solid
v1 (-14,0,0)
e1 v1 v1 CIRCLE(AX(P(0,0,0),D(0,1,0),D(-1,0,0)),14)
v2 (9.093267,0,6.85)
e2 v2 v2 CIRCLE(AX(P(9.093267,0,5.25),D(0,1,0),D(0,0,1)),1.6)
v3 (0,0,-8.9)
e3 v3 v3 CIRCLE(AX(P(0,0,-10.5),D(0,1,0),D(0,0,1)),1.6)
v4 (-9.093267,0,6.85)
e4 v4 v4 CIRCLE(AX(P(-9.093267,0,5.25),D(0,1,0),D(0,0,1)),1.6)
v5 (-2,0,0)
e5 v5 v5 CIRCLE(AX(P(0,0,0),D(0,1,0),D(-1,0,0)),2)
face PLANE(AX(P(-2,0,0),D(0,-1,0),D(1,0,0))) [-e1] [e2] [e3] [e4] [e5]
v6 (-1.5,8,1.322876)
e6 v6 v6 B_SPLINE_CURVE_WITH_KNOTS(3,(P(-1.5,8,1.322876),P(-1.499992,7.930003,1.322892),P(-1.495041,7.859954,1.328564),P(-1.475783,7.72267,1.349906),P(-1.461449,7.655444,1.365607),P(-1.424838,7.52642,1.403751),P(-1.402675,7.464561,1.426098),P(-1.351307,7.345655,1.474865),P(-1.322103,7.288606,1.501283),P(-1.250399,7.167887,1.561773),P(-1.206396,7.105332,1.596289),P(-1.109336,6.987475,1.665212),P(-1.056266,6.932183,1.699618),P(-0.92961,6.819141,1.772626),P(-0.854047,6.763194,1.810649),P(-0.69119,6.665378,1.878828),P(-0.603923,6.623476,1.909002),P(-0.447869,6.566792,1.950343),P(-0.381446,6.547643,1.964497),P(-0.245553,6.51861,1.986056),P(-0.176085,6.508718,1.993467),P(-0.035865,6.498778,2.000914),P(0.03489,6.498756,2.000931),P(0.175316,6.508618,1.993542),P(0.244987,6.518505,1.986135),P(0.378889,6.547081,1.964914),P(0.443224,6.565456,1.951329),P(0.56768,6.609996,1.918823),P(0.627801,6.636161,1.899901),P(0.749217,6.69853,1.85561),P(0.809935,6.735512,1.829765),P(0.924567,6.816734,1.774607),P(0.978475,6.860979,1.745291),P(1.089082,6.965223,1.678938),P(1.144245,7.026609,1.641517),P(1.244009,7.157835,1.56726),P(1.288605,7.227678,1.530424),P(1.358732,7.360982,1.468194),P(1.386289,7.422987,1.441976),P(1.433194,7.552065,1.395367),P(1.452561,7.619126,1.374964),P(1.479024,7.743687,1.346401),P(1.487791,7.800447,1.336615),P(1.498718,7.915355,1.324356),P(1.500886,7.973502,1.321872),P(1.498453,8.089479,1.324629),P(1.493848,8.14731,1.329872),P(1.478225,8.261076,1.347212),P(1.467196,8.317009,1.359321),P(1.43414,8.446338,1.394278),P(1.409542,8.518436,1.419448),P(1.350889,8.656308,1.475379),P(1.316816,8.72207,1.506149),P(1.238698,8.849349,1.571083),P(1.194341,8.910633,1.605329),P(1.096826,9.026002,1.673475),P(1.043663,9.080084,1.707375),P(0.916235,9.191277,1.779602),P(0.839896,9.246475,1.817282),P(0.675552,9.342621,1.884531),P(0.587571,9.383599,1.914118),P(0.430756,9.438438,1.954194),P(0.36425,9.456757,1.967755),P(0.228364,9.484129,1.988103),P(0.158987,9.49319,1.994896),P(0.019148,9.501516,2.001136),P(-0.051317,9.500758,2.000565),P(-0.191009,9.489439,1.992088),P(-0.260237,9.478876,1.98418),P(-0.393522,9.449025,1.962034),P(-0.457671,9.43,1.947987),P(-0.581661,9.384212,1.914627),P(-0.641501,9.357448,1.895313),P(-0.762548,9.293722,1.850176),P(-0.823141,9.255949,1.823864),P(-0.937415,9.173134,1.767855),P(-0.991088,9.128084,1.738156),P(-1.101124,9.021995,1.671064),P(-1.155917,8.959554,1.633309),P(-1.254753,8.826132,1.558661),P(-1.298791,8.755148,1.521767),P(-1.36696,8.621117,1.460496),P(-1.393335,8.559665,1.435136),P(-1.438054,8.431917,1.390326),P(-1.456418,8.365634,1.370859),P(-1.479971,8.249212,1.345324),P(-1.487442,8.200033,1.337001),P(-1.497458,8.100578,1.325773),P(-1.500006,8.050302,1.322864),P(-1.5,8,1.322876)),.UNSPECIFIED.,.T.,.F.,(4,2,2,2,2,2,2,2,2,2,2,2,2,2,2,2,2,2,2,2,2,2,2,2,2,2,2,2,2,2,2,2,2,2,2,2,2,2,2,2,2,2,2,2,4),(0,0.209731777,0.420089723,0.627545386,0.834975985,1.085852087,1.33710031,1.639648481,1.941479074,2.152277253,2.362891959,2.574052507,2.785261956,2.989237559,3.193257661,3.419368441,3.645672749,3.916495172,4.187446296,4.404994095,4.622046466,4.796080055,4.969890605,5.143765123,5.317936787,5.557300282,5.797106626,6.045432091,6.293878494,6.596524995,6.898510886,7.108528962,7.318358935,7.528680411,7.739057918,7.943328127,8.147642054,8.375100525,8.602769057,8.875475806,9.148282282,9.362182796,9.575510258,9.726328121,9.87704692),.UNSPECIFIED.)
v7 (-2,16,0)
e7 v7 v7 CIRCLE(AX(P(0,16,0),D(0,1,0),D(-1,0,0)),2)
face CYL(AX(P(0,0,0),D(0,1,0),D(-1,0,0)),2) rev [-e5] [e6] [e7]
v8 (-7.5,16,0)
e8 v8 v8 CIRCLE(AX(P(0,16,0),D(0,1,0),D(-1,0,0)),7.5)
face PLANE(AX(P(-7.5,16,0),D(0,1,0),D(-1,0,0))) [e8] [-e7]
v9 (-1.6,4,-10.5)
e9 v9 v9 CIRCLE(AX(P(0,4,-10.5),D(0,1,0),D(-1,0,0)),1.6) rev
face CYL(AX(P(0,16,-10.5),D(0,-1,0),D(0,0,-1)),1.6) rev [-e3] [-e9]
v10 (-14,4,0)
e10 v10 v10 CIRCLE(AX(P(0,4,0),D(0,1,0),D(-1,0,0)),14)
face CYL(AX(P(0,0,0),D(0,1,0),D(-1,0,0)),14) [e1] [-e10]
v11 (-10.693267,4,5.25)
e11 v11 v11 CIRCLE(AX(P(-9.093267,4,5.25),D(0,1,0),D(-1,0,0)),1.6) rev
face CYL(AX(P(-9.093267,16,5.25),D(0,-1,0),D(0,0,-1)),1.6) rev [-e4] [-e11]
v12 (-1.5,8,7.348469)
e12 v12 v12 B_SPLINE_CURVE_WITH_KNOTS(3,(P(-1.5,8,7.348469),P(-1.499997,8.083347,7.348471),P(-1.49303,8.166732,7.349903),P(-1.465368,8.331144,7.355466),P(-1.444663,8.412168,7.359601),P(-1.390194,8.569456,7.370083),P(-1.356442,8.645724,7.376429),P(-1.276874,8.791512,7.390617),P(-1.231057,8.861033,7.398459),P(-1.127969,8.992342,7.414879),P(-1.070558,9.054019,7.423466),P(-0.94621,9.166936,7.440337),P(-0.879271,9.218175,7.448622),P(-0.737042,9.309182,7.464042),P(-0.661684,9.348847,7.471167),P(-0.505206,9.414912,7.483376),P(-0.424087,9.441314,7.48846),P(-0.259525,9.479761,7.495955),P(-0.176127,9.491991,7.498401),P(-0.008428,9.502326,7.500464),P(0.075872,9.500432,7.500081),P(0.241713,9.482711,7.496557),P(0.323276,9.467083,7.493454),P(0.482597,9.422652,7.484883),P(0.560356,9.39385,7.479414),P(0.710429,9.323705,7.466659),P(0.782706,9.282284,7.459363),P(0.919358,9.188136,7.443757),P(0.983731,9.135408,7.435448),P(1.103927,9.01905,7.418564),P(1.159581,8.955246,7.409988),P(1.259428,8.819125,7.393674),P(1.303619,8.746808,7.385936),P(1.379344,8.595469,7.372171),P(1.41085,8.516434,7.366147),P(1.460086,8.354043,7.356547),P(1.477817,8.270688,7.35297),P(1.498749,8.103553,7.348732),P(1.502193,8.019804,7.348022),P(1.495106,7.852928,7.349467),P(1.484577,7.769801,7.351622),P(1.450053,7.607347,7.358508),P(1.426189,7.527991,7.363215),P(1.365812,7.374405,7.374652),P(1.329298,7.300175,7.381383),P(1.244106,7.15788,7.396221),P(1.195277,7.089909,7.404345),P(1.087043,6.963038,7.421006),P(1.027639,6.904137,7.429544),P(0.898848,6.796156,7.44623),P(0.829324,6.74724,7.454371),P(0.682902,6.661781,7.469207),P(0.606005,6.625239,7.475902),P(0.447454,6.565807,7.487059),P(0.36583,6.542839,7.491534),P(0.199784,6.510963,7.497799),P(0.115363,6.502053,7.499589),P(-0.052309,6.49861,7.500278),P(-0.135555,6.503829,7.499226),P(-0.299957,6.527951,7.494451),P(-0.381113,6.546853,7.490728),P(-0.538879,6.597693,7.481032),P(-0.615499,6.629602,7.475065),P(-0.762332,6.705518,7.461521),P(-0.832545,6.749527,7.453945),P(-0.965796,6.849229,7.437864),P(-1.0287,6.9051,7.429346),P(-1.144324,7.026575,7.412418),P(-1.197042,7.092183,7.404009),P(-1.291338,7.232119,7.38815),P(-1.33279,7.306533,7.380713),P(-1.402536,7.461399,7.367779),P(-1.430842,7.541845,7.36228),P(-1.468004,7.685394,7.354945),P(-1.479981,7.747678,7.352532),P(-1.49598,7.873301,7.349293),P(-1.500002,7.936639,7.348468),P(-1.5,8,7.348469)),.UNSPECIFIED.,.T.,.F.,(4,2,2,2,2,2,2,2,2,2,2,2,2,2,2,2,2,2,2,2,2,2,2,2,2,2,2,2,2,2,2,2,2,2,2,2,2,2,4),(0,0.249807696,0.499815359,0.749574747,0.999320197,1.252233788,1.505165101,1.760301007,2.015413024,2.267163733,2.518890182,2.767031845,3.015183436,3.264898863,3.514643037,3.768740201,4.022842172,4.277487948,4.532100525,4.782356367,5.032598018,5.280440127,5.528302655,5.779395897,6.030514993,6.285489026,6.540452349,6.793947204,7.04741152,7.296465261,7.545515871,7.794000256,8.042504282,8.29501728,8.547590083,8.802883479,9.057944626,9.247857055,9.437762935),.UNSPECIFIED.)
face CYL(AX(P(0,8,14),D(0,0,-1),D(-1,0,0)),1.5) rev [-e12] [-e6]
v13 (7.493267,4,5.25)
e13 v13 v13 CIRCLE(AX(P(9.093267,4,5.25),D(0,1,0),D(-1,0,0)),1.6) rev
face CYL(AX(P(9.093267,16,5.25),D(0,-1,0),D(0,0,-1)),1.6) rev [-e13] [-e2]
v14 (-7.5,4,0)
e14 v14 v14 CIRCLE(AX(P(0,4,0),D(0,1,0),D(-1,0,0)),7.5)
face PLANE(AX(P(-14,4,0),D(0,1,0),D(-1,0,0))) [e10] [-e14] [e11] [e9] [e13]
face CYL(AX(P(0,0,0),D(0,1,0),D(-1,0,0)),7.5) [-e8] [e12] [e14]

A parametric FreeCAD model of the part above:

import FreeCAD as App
import Part
import Sketcher
from FreeCAD import Vector

doc = App.newDocument("Part")
body = doc.addObject("PartDesign::Body", "Body")

# Sketch on XY plane
sketch1 = doc.addObject("Sketcher::SketchObject", "Sketch")
body.addObject(sketch1)
sketch1.AttachmentSupport = (doc.XY_Plane, [""])
sketch1.MapMode = "FlatFace"
sketch1.addGeometry(Part.LineSegment(Vector(-14, 4, 0), Vector(-14, 0, 0)), False)
sketch1.addGeometry(Part.LineSegment(Vector(-14, 0, 0), Vector(-2, 0, 0)), False)
sketch1.addGeometry(Part.LineSegment(Vector(-2, 0, 0), Vector(-2, 16, 0)), False)
sketch1.addGeometry(Part.LineSegment(Vector(-2, 16, 0), Vector(-7.5, 16, 0)), False)
sketch1.addGeometry(Part.LineSegment(Vector(-7.5, 16, 0), Vector(-7.5, 4, 0)), False)
sketch1.addGeometry(Part.LineSegment(Vector(-7.5, 4, 0), Vector(-14, 4, 0)), False)
sketch1.addConstraint(Sketcher.Constraint("Coincident", 0, 2, 1, 1))
sketch1.addConstraint(Sketcher.Constraint("Coincident", 1, 2, 2, 1))
sketch1.addConstraint(Sketcher.Constraint("Coincident", 2, 2, 3, 1))
sketch1.addConstraint(Sketcher.Constraint("Coincident", 3, 2, 4, 1))
sketch1.addConstraint(Sketcher.Constraint("Coincident", 4, 2, 5, 1))
sketch1.addConstraint(Sketcher.Constraint("Coincident", 5, 2, 0, 1))
sketch1.addConstraint(Sketcher.Constraint("Vertical", 0))
sketch1.addConstraint(Sketcher.Constraint("Horizontal", 1))
sketch1.addConstraint(Sketcher.Constraint("Vertical", 2))
sketch1.addConstraint(Sketcher.Constraint("Horizontal", 3))
sketch1.addConstraint(Sketcher.Constraint("Vertical", 4))
sketch1.addConstraint(Sketcher.Constraint("Horizontal", 5))
sketch1.addConstraint(Sketcher.Constraint("PointOnObject", 0, 2, -1))
sketch1.addConstraint(Sketcher.Constraint("Equal", 1, 4))
sketch1.addConstraint(Sketcher.Constraint("DistanceX", 1, 1, 1, 2, 12.0))
sketch1.addConstraint(Sketcher.Constraint("DistanceY", 0, 2, 0, 1, 4.0))
sketch1.addConstraint(Sketcher.Constraint("DistanceX", 3, 2, 3, 1, 5.5))
sketch1.addConstraint(Sketcher.Constraint("DistanceX", 0, 2, -1, 1, 14.0))
revolution = doc.addObject("PartDesign::Revolution", "Revolution")
body.addObject(revolution)
revolution.Profile = sketch1
revolution.ReferenceAxis = (sketch1, ["V_Axis"])
revolution.Angle = 360

# Sketch on XZ plane
sketch2 = doc.addObject("Sketcher::SketchObject", "Sketch001")
body.addObject(sketch2)
sketch2.AttachmentSupport = (doc.XZ_Plane, [""])
sketch2.MapMode = "FlatFace"
sketch2.addGeometry(Part.Circle(Vector(0, -10.5, 0), Vector(0, 0, 1), 1.6), False)
sketch2.addGeometry(Part.Circle(Vector(9.1, 5.2, 0), Vector(0, 0, 1), 1.6), False)
sketch2.addGeometry(Part.Circle(Vector(-9.1, 5.2, 0), Vector(0, 0, 1), 1.6), False)
sketch2.addConstraint(Sketcher.Constraint("Equal", 0, 1))
sketch2.addConstraint(Sketcher.Constraint("Equal", 1, 2))
sketch2.addConstraint(Sketcher.Constraint("Symmetric", 1, 3, 2, 3, -2))
sketch2.addConstraint(Sketcher.Constraint("PointOnObject", 0, 3, -2))
sketch2.addConstraint(Sketcher.Constraint("Diameter", 0, 3.2))
sketch2.addConstraint(Sketcher.Constraint("DistanceY", 0, 3, -1, 1, 10.5))
sketch2.addConstraint(Sketcher.Constraint("DistanceY", -1, 1, 1, 3, 5.25))
sketch2.addConstraint(Sketcher.Constraint("DistanceX", -1, 1, 1, 3, 9.093267))
pocket1 = doc.addObject("PartDesign::Pocket", "Pocket")
body.addObject(pocket1)
pocket1.Profile = sketch2
pocket1.Type = "ThroughAll"

# Sketch on XY plane
sketch3 = doc.addObject("Sketcher::SketchObject", "Sketch002")
body.addObject(sketch3)
sketch3.AttachmentSupport = (doc.XY_Plane, [""])
sketch3.MapMode = "FlatFace"
sketch3.addGeometry(Part.Circle(Vector(0, 8, 0), Vector(0, 0, 1), 1.5), False)
sketch3.addConstraint(Sketcher.Constraint("PointOnObject", 0, 3, -2))
sketch3.addConstraint(Sketcher.Constraint("Diameter", 0, 3.0))
sketch3.addConstraint(Sketcher.Constraint("DistanceY", -1, 1, 0, 3, 8.0))
pocket2 = doc.addObject("PartDesign::Pocket", "Pocket001")
body.addObject(pocket2)
pocket2.Profile = sketch3
pocket2.Type = "ThroughAll"
pocket2.Reversed = True

doc.recompute()
